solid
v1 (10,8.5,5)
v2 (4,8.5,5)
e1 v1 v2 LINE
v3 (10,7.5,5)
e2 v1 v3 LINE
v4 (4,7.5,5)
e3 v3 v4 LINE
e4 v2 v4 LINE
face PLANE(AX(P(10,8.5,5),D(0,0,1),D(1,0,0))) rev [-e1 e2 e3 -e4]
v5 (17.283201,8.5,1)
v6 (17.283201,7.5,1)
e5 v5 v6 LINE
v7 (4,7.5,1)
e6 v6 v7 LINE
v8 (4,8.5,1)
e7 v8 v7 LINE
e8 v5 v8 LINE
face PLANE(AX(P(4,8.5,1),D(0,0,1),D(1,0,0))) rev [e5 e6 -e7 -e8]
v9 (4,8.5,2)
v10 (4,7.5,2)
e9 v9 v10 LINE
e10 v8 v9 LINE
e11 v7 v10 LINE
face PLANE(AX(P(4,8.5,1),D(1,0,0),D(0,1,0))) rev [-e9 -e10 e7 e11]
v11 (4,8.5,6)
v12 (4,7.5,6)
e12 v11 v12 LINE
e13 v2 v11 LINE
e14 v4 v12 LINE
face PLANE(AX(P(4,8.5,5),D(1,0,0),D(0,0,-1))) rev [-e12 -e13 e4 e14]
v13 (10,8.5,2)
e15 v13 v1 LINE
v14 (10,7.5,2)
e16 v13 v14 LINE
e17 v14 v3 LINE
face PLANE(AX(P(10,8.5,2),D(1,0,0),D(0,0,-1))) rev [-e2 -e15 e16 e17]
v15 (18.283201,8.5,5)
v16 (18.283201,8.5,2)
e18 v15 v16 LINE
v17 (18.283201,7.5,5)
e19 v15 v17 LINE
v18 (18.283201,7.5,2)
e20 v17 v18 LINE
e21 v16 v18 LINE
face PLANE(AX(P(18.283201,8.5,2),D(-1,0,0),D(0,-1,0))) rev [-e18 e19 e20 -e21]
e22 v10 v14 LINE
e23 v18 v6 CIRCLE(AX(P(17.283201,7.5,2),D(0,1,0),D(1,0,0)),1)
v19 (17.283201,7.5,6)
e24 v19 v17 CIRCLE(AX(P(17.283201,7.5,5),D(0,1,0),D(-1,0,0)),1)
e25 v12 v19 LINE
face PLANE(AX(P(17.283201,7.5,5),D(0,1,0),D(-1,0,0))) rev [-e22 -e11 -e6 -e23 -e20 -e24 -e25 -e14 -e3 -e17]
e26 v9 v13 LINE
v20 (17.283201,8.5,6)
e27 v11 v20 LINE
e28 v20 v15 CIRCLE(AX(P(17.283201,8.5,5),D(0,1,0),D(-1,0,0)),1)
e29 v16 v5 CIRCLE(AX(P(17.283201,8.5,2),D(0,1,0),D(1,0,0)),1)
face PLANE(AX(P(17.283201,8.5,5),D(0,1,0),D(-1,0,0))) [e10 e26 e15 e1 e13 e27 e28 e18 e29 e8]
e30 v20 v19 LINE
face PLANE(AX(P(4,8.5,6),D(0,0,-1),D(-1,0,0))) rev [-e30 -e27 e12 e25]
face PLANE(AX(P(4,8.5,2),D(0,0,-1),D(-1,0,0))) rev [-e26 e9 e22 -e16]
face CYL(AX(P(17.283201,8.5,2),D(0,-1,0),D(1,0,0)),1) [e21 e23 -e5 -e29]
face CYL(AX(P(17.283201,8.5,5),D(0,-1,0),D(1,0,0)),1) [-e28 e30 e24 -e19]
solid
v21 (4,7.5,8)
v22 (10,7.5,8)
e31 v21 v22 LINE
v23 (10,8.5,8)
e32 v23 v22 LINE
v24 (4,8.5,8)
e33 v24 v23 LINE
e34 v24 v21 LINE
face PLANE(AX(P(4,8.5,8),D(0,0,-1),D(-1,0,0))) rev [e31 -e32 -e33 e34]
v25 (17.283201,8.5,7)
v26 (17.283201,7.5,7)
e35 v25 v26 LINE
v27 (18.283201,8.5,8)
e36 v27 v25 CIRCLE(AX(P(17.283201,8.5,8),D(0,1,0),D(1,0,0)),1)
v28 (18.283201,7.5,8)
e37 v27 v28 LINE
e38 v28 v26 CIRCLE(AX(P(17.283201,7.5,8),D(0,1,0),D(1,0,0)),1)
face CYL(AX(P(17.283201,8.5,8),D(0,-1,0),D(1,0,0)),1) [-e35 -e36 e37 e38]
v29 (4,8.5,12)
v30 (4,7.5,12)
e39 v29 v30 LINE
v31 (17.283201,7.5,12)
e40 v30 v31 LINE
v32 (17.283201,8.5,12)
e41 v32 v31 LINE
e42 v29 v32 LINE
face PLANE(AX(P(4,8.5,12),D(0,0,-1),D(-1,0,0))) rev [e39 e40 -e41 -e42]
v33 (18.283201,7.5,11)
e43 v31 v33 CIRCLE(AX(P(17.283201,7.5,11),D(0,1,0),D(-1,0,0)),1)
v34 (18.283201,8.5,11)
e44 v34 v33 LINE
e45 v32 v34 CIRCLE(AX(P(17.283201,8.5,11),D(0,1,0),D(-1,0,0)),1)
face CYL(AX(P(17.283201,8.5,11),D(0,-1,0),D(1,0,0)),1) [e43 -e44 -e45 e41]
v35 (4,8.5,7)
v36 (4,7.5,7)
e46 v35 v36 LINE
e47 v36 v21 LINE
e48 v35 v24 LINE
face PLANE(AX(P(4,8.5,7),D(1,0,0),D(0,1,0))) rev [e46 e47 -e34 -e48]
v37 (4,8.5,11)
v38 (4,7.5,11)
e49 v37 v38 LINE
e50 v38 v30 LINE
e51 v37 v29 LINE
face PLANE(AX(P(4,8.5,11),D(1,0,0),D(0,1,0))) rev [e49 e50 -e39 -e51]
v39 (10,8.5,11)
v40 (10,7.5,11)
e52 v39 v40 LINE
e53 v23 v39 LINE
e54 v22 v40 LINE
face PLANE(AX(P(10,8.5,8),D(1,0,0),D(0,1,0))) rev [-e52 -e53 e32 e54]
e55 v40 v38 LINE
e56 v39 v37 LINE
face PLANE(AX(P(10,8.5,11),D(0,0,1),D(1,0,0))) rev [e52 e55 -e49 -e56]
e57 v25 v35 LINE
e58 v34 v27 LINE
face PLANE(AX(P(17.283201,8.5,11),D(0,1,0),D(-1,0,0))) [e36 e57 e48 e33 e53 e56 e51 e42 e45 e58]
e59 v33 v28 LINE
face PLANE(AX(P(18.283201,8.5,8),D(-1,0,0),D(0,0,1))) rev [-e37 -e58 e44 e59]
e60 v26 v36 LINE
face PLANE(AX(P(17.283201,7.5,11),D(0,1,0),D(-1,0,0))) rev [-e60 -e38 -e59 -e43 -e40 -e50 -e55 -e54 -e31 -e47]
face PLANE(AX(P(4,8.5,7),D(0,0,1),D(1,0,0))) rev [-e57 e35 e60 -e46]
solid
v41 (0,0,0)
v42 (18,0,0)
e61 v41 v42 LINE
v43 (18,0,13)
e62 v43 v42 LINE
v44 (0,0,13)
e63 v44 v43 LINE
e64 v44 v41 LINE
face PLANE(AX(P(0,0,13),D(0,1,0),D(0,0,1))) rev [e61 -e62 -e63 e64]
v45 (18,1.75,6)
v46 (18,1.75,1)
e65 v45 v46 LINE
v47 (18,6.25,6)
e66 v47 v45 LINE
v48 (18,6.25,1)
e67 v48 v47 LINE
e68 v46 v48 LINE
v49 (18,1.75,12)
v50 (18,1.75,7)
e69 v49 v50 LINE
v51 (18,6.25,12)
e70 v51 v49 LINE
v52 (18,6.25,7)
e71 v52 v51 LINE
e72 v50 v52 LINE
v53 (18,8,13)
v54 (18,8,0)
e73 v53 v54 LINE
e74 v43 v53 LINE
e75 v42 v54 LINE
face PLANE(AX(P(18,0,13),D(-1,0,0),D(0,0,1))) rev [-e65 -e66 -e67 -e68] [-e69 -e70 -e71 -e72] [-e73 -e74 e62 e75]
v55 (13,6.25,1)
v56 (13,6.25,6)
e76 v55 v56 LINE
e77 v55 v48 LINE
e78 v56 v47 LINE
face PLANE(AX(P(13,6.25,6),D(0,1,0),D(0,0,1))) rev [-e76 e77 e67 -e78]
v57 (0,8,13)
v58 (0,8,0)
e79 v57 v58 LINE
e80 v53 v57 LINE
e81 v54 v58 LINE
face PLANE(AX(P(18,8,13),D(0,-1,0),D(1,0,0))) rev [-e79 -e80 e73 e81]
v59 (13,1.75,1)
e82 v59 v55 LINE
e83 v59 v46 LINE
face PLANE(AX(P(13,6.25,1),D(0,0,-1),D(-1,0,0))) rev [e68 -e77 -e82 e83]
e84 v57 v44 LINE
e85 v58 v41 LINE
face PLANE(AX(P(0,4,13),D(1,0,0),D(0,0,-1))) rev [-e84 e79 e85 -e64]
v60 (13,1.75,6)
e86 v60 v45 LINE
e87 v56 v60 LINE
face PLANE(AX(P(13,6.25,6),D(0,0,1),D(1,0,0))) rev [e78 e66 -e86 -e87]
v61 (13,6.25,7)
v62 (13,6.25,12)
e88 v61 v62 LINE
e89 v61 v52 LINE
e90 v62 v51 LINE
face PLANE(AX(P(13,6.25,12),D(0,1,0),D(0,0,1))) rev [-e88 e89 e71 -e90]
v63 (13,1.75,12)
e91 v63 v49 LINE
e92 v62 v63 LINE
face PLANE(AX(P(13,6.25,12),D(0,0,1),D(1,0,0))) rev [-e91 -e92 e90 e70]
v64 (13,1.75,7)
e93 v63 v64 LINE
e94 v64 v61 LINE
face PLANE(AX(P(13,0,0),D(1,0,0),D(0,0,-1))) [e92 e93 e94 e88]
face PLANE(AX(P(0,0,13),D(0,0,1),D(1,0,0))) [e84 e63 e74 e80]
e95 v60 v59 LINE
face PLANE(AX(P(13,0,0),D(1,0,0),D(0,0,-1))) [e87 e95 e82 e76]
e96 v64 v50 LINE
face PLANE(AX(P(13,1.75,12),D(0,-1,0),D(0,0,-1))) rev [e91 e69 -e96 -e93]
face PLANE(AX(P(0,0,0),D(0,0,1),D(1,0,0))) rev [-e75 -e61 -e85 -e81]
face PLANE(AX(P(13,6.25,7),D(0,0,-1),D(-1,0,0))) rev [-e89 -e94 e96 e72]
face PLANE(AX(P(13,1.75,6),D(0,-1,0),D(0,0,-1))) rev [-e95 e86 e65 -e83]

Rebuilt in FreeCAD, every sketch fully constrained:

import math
import FreeCAD as App
import Part
import Sketcher

V = App.Vector

doc = App.newDocument("Part")
body = doc.addObject("PartDesign::Body", "Body")

sketch1 = body.newObject("Sketcher::SketchObject", "Sketch")
sketch1.AttachmentSupport = (doc.getObject("XY_Plane"), [""])
sketch1.MapMode = "FlatFace"
sketch1.addGeometry([
    Part.LineSegment(V(0, 0, 0), V(18, 0, 0)),
    Part.LineSegment(V(18, 0, 0), V(18, 8, 0)),
    Part.LineSegment(V(18, 8, 0), V(0, 8, 0)),
    Part.LineSegment(V(0, 8, 0), V(0, 0, 0)),
], False)
sketch1.addConstraint([
    Sketcher.Constraint("Coincident", 0, 2, 1, 1),
    Sketcher.Constraint("Coincident", 1, 2, 2, 1),
    Sketcher.Constraint("Coincident", 2, 2, 3, 1),
    Sketcher.Constraint("Coincident", 3, 2, 0, 1),
    Sketcher.Constraint("Horizontal", 0),
    Sketcher.Constraint("Vertical", 1),
    Sketcher.Constraint("Horizontal", 2),
    Sketcher.Constraint("Vertical", 3),
    Sketcher.Constraint("Coincident", 3, 2, -1, 1),
    Sketcher.Constraint("DistanceX", 0, 1, 0, 2, 18.0),
    Sketcher.Constraint("DistanceY", 1, 1, 1, 2, 8.0),
])
pad1 = body.newObject("PartDesign::Pad", "Pad")
pad1.Profile = sketch1
pad1.Length = 13

sketch2 = body.newObject("Sketcher::SketchObject", "Sketch001")
sketch2.AttachmentSupport = (doc.getObject("YZ_Plane"), [""])
sketch2.MapMode = "FlatFace"
sketch2.AttachmentOffset = App.Placement(V(0, 0, 18), App.Rotation())
sketch2.addGeometry([
    Part.LineSegment(V(6.2, 6, 0), V(1.8, 6, 0)),
    Part.LineSegment(V(1.8, 6, 0), V(1.8, 1, 0)),
    Part.LineSegment(V(1.8, 1, 0), V(6.2, 1, 0)),
    Part.LineSegment(V(6.2, 1, 0), V(6.2, 6, 0)),
    Part.LineSegment(V(6.2, 12, 0), V(1.8, 12, 0)),
    Part.LineSegment(V(1.8, 12, 0), V(1.8, 7, 0)),
    Part.LineSegment(V(1.8, 7, 0), V(6.2, 7, 0)),
    Part.LineSegment(V(6.2, 7, 0), V(6.2, 12, 0)),
], False)
sketch2.addConstraint([
    Sketcher.Constraint("Coincident", 0, 2, 1, 1),
    Sketcher.Constraint("Coincident", 1, 2, 2, 1),
    Sketcher.Constraint("Coincident", 2, 2, 3, 1),
    Sketcher.Constraint("Coincident", 3, 2, 0, 1),
    Sketcher.Constraint("Coincident", 4, 2, 5, 1),
    Sketcher.Constraint("Coincident", 5, 2, 6, 1),
    Sketcher.Constraint("Coincident", 6, 2, 7, 1),
    Sketcher.Constraint("Coincident", 7, 2, 4, 1),
    Sketcher.Constraint("Horizontal", 0),
    Sketcher.Constraint("Vertical", 1),
    Sketcher.Constraint("Horizontal", 2),
    Sketcher.Constraint("Vertical", 3),
    Sketcher.Constraint("Horizontal", 4),
    Sketcher.Constraint("Vertical", 5),
    Sketcher.Constraint("Horizontal", 6),
    Sketcher.Constraint("Vertical", 7),
    Sketcher.Constraint("Vertical", 1, 2, 4, 2),
    Sketcher.Constraint("Vertical", 3, 2, 6, 2),
    Sketcher.Constraint("Equal", 3, 5),
    Sketcher.Constraint("DistanceY", 1, 2, 1, 1, 5.0),
    Sketcher.Constraint("DistanceX", 0, 2, 0, 1, 4.5),
    Sketcher.Constraint("DistanceY", -1, 1, 0, 2, 6.0),
    Sketcher.Constraint("DistanceY", -1, 1, 4, 2, 12.0),
    Sketcher.Constraint("DistanceX", -1, 1, 0, 2, 1.75),
])
pocket1 = body.newObject("PartDesign::Pocket", "Pocket")
pocket1.Profile = sketch2
pocket1.Length = 5
body2 = doc.addObject("PartDesign::Body", "Body001")

sketch3 = body2.newObject("Sketcher::SketchObject", "Sketch002")
sketch3.AttachmentSupport = (doc.getObject("XZ_Plane001"), [""])
sketch3.MapMode = "FlatFace"
sketch3.AttachmentOffset = App.Placement(V(0, 0, -8), App.Rotation())
sketch3.addGeometry([
    Part.LineSegment(V(17.3, 1, 0), V(4, 1, 0)),
    Part.LineSegment(V(4, 1, 0), V(4, 2, 0)),
    Part.LineSegment(V(4, 2, 0), V(10, 2, 0)),
    Part.LineSegment(V(10, 2, 0), V(10, 5, 0)),
    Part.LineSegment(V(10, 5, 0), V(4, 5, 0)),
    Part.LineSegment(V(4, 5, 0), V(4, 6, 0)),
    Part.LineSegment(V(4, 6, 0), V(17.3, 6, 0)),
    Part.ArcOfCircle(Part.Circle(V(17.3, 5, 0), V(0, 0, 1), 1), math.radians(0), math.radians(90)),
    Part.LineSegment(V(18.3, 5, 0), V(18.3, 2, 0)),
    Part.ArcOfCircle(Part.Circle(V(17.3, 2, 0), V(0, 0, 1), 1), math.radians(-90), math.radians(0)),
], False)
sketch3.addConstraint([
    Sketcher.Constraint("Coincident", 0, 2, 1, 1),
    Sketcher.Constraint("Coincident", 1, 2, 2, 1),
    Sketcher.Constraint("Coincident", 2, 2, 3, 1),
    Sketcher.Constraint("Coincident", 3, 2, 4, 1),
    Sketcher.Constraint("Coincident", 4, 2, 5, 1),
    Sketcher.Constraint("Coincident", 5, 2, 6, 1),
    Sketcher.Constraint("Tangent", 6, 2, 7, 2),
    Sketcher.Constraint("Tangent", 7, 1, 8, 1),
    Sketcher.Constraint("Tangent", 8, 2, 9, 2),
    Sketcher.Constraint("Tangent", 9, 1, 0, 1),
    Sketcher.Constraint("Horizontal", 0),
    Sketcher.Constraint("Vertical", 1),
    Sketcher.Constraint("Horizontal", 2),
    Sketcher.Constraint("Vertical", 3),
    Sketcher.Constraint("Horizontal", 4),
    Sketcher.Constraint("Vertical", 5),
    Sketcher.Constraint("Horizontal", 6),
    Sketcher.Constraint("Vertical", 8),
    Sketcher.Constraint("Equal", 7, 9),
    Sketcher.Constraint("Horizontal", 9, 3, 1, 2),
    Sketcher.Constraint("Horizontal", 7, 3, 3, 2),
    Sketcher.Constraint("Vertical", 1, 2, 4, 2),
    Sketcher.Constraint("Radius", 7, 1.0),
    Sketcher.Constraint("DistanceX", 2, 1, 2, 2, 6.0),
    Sketcher.Constraint("DistanceY", 3, 1, 3, 2, 3.0),
    Sketcher.Constraint("DistanceY", -1, 1, 7, 3, 5.0),
    Sketcher.Constraint("DistanceX", -1, 1, 0, 2, 4.0),
    Sketcher.Constraint("DistanceX", 0, 2, 0, 1, 13.283201),
])
pad2 = body2.newObject("PartDesign::Pad", "Pad001")
pad2.Profile = sketch3
pad2.Length = 1
pad2.Midplane = True
body3 = doc.addObject("PartDesign::Body", "Body002")

sketch4 = body3.newObject("Sketcher::SketchObject", "Sketch003")
sketch4.AttachmentSupport = (doc.getObject("XZ_Plane002"), [""])
sketch4.MapMode = "FlatFace"
sketch4.AttachmentOffset = App.Placement(V(0, 0, -8), App.Rotation())
sketch4.addGeometry([
    Part.LineSegment(V(17.3, 7, 0), V(4, 7, 0)),
    Part.LineSegment(V(4, 7, 0), V(4, 8, 0)),
    Part.LineSegment(V(4, 8, 0), V(10, 8, 0)),
    Part.LineSegment(V(10, 8, 0), V(10, 11, 0)),
    Part.LineSegment(V(10, 11, 0), V(4, 11, 0)),
    Part.LineSegment(V(4, 11, 0), V(4, 12, 0)),
    Part.LineSegment(V(4, 12, 0), V(17.3, 12, 0)),
    Part.ArcOfCircle(Part.Circle(V(17.3, 11, 0), V(0, 0, 1), 1), math.radians(0), math.radians(90)),
    Part.LineSegment(V(18.3, 11, 0), V(18.3, 8, 0)),
    Part.ArcOfCircle(Part.Circle(V(17.3, 8, 0), V(0, 0, 1), 1), math.radians(-90), math.radians(0)),
], False)
sketch4.addConstraint([
    Sketcher.Constraint("Coincident", 0, 2, 1, 1),
    Sketcher.Constraint("Coincident", 1, 2, 2, 1),
    Sketcher.Constraint("Coincident", 2, 2, 3, 1),
    Sketcher.Constraint("Coincident", 3, 2, 4, 1),
    Sketcher.Constraint("Coincident", 4, 2, 5, 1),
    Sketcher.Constraint("Coincident", 5, 2, 6, 1),
    Sketcher.Constraint("Tangent", 6, 2, 7, 2),
    Sketcher.Constraint("Tangent", 7, 1, 8, 1),
    Sketcher.Constraint("Tangent", 8, 2, 9, 2),
    Sketcher.Constraint("Tangent", 9, 1, 0, 1),
    Sketcher.Constraint("Horizontal", 0),
    Sketcher.Constraint("Vertical", 1),
    Sketcher.Constraint("Horizontal", 2),
    Sketcher.Constraint("Vertical", 3),
    Sketcher.Constraint("Horizontal", 4),
    Sketcher.Constraint("Vertical", 5),
    Sketcher.Constraint("Horizontal", 6),
    Sketcher.Constraint("Vertical", 8),
    Sketcher.Constraint("Equal", 7, 9),
    Sketcher.Constraint("Horizontal", 9, 3, 1, 2),
    Sketcher.Constraint("Horizontal", 7, 3, 3, 2),
    Sketcher.Constraint("Vertical", 1, 2, 4, 2),
    Sketcher.Constraint("Radius", 7, 1.0),
    Sketcher.Constraint("DistanceX", 2, 1, 2, 2, 6.0),
    Sketcher.Constraint("DistanceY", 3, 1, 3, 2, 3.0),
    Sketcher.Constraint("DistanceY", -1, 1, 7, 3, 11.0),
    Sketcher.Constraint("DistanceX", -1, 1, 0, 2, 4.0),
    Sketcher.Constraint("DistanceX", 0, 2, 0, 1, 13.283201),
])
pad3 = body3.newObject("PartDesign::Pad", "Pad002")
pad3.Profile = sketch4
pad3.Length = 1
pad3.Midplane = True

doc.recompute()
